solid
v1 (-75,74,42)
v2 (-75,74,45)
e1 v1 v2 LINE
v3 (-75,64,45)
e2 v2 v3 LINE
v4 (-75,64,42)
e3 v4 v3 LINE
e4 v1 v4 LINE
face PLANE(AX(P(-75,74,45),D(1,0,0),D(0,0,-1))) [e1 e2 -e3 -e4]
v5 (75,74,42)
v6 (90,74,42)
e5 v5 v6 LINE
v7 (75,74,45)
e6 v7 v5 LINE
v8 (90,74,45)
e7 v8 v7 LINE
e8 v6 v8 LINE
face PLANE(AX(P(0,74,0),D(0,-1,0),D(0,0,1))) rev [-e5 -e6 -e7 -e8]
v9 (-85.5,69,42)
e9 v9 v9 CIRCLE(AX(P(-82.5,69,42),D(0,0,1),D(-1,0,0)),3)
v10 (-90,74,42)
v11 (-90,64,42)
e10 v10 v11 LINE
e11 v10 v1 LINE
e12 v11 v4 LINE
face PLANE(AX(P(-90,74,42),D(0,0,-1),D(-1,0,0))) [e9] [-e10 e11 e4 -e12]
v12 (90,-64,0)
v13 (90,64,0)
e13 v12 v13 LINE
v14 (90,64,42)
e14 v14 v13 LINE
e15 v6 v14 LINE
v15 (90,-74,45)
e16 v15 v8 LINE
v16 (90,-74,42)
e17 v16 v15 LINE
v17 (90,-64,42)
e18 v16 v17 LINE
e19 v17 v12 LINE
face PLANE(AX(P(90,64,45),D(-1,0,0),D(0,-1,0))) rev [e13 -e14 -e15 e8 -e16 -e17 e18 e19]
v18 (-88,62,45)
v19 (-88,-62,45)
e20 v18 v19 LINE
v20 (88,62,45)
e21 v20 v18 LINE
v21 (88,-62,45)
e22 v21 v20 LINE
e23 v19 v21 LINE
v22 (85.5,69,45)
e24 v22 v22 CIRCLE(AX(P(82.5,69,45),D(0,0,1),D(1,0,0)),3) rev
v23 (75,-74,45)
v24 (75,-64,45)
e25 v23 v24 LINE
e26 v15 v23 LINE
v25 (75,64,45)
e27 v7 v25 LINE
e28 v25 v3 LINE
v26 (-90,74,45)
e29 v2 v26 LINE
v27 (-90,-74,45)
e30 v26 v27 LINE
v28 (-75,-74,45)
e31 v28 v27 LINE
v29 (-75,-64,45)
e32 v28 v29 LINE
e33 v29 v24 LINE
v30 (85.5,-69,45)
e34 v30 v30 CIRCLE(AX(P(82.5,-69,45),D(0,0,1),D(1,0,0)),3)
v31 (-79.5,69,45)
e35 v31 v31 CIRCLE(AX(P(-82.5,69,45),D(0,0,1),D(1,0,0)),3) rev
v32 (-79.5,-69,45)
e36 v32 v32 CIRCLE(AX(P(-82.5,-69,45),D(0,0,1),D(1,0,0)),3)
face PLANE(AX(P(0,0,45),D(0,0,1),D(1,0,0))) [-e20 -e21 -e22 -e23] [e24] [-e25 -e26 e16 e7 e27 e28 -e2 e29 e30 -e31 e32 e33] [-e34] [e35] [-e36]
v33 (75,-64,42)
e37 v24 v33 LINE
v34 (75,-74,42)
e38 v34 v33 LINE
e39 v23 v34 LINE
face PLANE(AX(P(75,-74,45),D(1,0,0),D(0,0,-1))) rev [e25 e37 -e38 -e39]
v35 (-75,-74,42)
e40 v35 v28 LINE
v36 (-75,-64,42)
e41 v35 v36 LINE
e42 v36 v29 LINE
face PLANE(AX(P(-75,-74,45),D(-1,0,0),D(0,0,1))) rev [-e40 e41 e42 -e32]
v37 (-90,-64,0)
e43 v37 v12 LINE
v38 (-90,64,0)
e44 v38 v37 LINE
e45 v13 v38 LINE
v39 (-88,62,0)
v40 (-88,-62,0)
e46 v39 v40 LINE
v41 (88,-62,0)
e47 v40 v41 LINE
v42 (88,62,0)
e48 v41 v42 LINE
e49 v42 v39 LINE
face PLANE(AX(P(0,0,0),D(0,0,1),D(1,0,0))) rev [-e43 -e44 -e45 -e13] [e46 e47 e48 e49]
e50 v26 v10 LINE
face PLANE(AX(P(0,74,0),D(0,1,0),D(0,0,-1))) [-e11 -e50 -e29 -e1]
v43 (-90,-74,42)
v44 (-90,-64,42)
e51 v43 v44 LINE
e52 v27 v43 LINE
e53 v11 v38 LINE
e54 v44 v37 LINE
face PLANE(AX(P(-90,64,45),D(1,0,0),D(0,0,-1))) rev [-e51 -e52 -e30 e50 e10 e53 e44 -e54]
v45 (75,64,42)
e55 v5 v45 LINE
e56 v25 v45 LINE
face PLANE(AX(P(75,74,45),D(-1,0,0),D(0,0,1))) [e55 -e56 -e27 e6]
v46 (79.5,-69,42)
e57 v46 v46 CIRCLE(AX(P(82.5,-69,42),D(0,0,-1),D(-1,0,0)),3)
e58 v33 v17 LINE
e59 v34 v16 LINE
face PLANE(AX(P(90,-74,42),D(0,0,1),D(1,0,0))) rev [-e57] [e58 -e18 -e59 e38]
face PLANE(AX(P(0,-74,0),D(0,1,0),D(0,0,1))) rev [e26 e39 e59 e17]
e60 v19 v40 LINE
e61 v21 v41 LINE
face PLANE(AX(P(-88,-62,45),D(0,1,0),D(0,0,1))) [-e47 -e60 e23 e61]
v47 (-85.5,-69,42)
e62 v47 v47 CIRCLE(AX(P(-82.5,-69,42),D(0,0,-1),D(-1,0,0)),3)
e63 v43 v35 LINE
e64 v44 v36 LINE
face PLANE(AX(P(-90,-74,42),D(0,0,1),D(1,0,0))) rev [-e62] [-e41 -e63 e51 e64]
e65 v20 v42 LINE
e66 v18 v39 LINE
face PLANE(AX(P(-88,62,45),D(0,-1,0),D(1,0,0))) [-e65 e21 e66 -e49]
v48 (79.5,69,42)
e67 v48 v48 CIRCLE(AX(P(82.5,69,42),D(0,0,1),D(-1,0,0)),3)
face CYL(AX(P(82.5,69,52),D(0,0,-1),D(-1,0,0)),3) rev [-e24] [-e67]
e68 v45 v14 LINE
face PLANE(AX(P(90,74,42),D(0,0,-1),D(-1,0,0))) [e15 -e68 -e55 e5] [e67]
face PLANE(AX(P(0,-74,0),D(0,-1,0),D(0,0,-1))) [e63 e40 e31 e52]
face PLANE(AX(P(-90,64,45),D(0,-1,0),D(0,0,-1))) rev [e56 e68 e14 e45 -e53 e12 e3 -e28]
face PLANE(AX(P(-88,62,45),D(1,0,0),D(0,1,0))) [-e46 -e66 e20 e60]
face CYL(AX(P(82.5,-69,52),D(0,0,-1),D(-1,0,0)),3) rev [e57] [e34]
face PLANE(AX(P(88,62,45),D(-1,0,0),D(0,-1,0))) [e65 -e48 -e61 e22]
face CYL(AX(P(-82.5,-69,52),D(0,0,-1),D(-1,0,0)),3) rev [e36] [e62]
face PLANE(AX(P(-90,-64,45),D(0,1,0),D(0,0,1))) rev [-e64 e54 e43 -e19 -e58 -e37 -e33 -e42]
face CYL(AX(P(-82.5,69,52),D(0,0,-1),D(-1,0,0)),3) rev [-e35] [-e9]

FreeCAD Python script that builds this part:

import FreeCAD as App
import Part
import Sketcher

V = App.Vector

doc = App.newDocument("Part")
body = doc.addObject("PartDesign::Body", "Body")

# Sketch on XY plane
sketch1 = body.newObject("Sketcher::SketchObject", "Sketch")
sketch1.AttachmentSupport = (doc.getObject("XY_Plane"), [""])
sketch1.MapMode = "FlatFace"
sketch1.addGeometry([
    Part.LineSegment(V(-90, 64, 0), V(-90, -64, 0)),  # 0
    Part.LineSegment(V(-90, -64, 0), V(90, -64, 0)),  # 1
    Part.LineSegment(V(90, -64, 0), V(90, 64, 0)),  # 2
    Part.LineSegment(V(90, 64, 0), V(-90, 64, 0)),  # 3
    Part.LineSegment(V(88, -62, 0), V(-88, -62, 0)),  # 4
    Part.LineSegment(V(-88, -62, 0), V(-88, 62, 0)),  # 5
    Part.LineSegment(V(-88, 62, 0), V(88, 62, 0)),  # 6
    Part.LineSegment(V(88, 62, 0), V(88, -62, 0)),  # 7
], False)
sketch1.addConstraint([
    Sketcher.Constraint("Coincident", 0, 2, 1, 1),
    Sketcher.Constraint("Coincident", 1, 2, 2, 1),
    Sketcher.Constraint("Coincident", 2, 2, 3, 1),
    Sketcher.Constraint("Coincident", 3, 2, 0, 1),
    Sketcher.Constraint("Coincident", 4, 2, 5, 1),
    Sketcher.Constraint("Coincident", 5, 2, 6, 1),
    Sketcher.Constraint("Coincident", 6, 2, 7, 1),
    Sketcher.Constraint("Coincident", 7, 2, 4, 1),
    Sketcher.Constraint("Vertical", 0),
    Sketcher.Constraint("Horizontal", 1),
    Sketcher.Constraint("Vertical", 2),
    Sketcher.Constraint("Horizontal", 3),
    Sketcher.Constraint("Horizontal", 4),
    Sketcher.Constraint("Vertical", 5),
    Sketcher.Constraint("Horizontal", 6),
    Sketcher.Constraint("Vertical", 7),
    Sketcher.Constraint("Symmetric", 0, 2, 2, 2, -1, 1),
    Sketcher.Constraint("Symmetric", 4, 2, 6, 2, -1, 1),
    Sketcher.Constraint("DistanceX", 1, 1, 1, 2, 180.0),
    Sketcher.Constraint("DistanceX", 4, 2, 4, 1, 176.0),
    Sketcher.Constraint("DistanceY", 0, 2, 0, 1, 128.0),
    Sketcher.Constraint("DistanceY", 5, 1, 5, 2, 124.0),
])
pad1 = body.newObject("PartDesign::Pad", "Pad")
pad1.Profile = sketch1
pad1.Length = 45

# Sketch on XZ plane
sketch2 = body.newObject("Sketcher::SketchObject", "Sketch001")
sketch2.AttachmentSupport = (doc.getObject("XZ_Plane"), [""])
sketch2.MapMode = "FlatFace"
sketch2.AttachmentOffset = App.Placement(V(0, 0, 64), App.Rotation())
sketch2.addGeometry([
    Part.LineSegment(V(75, 45, 0), V(75, 42, 0)),  # 0
    Part.LineSegment(V(75, 42, 0), V(90, 42, 0)),  # 1
    Part.LineSegment(V(90, 42, 0), V(90, 45, 0)),  # 2
    Part.LineSegment(V(90, 45, 0), V(75, 45, 0)),  # 3
    Part.LineSegment(V(-90, 45, 0), V(-90, 42, 0)),  # 4
    Part.LineSegment(V(-90, 42, 0), V(-75, 42, 0)),  # 5
    Part.LineSegment(V(-75, 42, 0), V(-75, 45, 0)),  # 6
    Part.LineSegment(V(-75, 45, 0), V(-90, 45, 0)),  # 7
], False)
sketch2.addConstraint([
    Sketcher.Constraint("Coincident", 0, 2, 1, 1),
    Sketcher.Constraint("Coincident", 1, 2, 2, 1),
    Sketcher.Constraint("Coincident", 2, 2, 3, 1),
    Sketcher.Constraint("Coincident", 3, 2, 0, 1),
    Sketcher.Constraint("Coincident", 4, 2, 5, 1),
    Sketcher.Constraint("Coincident", 5, 2, 6, 1),
    Sketcher.Constraint("Coincident", 6, 2, 7, 1),
    Sketcher.Constraint("Coincident", 7, 2, 4, 1),
    Sketcher.Constraint("Vertical", 0),
    Sketcher.Constraint("Horizontal", 1),
    Sketcher.Constraint("Vertical", 2),
    Sketcher.Constraint("Horizontal", 3),
    Sketcher.Constraint("Vertical", 4),
    Sketcher.Constraint("Horizontal", 5),
    Sketcher.Constraint("Vertical", 6),
    Sketcher.Constraint("Horizontal", 7),
    Sketcher.Constraint("Symmetric", 1, 2, 4, 2, -2),
    Sketcher.Constraint("Symmetric", 3, 2, 6, 2, -2),
    Sketcher.Constraint("DistanceX", 1, 1, 1, 2, 15.0),
    Sketcher.Constraint("DistanceY", 0, 2, 0, 1, 3.0),
    Sketcher.Constraint("DistanceX", -1, 1, 0, 2, 75.0),
    Sketcher.Constraint("DistanceY", -1, 1, 0, 2, 42.0),
])
pad2 = body.newObject("PartDesign::Pad", "Pad001")
pad2.Profile = sketch2
pad2.Length = 10

# Sketch on XY plane
sketch3 = body.newObject("Sketcher::SketchObject", "Sketch002")
sketch3.AttachmentSupport = (doc.getObject("XY_Plane"), [""])
sketch3.MapMode = "FlatFace"
sketch3.AttachmentOffset = App.Placement(V(0, 0, 42), App.Rotation())
sketch3.addGeometry([
    Part.Circle(V(82.5, -69, 0), V(0, 0, 1), 3),
    Part.Circle(V(-82.5, -69, 0), V(0, 0, 1), 3),
], False)
sketch3.addConstraint([
    Sketcher.Constraint("Equal", 0, 1),
    Sketcher.Constraint("Symmetric", 0, 3, 1, 3, -2),
    Sketcher.Constraint("Diameter", 0, 6.0),
    Sketcher.Constraint("DistanceY", 0, 3, -1, 1, 69.0),
    Sketcher.Constraint("DistanceX", 1, 3, 0, 3, 165.0),
])
pocket1 = body.newObject("PartDesign::Pocket", "Pocket")
pocket1.Profile = sketch3
pocket1.Length = 10
pocket1.Reversed = True
doc.recompute()

mirrored = body.newObject("PartDesign::Mirrored", "Mirrored")
mirrored.Originals = [pad2]
mirrored.MirrorPlane = (doc.getObject("XZ_Plane"), [""])
body.Tip = mirrored
doc.recompute()

mirrored2 = body.newObject("PartDesign::Mirrored", "Mirrored001")
mirrored2.Originals = [pocket1]
mirrored2.MirrorPlane = (doc.getObject("XZ_Plane"), [""])
body.Tip = mirrored2

doc.recompute()
